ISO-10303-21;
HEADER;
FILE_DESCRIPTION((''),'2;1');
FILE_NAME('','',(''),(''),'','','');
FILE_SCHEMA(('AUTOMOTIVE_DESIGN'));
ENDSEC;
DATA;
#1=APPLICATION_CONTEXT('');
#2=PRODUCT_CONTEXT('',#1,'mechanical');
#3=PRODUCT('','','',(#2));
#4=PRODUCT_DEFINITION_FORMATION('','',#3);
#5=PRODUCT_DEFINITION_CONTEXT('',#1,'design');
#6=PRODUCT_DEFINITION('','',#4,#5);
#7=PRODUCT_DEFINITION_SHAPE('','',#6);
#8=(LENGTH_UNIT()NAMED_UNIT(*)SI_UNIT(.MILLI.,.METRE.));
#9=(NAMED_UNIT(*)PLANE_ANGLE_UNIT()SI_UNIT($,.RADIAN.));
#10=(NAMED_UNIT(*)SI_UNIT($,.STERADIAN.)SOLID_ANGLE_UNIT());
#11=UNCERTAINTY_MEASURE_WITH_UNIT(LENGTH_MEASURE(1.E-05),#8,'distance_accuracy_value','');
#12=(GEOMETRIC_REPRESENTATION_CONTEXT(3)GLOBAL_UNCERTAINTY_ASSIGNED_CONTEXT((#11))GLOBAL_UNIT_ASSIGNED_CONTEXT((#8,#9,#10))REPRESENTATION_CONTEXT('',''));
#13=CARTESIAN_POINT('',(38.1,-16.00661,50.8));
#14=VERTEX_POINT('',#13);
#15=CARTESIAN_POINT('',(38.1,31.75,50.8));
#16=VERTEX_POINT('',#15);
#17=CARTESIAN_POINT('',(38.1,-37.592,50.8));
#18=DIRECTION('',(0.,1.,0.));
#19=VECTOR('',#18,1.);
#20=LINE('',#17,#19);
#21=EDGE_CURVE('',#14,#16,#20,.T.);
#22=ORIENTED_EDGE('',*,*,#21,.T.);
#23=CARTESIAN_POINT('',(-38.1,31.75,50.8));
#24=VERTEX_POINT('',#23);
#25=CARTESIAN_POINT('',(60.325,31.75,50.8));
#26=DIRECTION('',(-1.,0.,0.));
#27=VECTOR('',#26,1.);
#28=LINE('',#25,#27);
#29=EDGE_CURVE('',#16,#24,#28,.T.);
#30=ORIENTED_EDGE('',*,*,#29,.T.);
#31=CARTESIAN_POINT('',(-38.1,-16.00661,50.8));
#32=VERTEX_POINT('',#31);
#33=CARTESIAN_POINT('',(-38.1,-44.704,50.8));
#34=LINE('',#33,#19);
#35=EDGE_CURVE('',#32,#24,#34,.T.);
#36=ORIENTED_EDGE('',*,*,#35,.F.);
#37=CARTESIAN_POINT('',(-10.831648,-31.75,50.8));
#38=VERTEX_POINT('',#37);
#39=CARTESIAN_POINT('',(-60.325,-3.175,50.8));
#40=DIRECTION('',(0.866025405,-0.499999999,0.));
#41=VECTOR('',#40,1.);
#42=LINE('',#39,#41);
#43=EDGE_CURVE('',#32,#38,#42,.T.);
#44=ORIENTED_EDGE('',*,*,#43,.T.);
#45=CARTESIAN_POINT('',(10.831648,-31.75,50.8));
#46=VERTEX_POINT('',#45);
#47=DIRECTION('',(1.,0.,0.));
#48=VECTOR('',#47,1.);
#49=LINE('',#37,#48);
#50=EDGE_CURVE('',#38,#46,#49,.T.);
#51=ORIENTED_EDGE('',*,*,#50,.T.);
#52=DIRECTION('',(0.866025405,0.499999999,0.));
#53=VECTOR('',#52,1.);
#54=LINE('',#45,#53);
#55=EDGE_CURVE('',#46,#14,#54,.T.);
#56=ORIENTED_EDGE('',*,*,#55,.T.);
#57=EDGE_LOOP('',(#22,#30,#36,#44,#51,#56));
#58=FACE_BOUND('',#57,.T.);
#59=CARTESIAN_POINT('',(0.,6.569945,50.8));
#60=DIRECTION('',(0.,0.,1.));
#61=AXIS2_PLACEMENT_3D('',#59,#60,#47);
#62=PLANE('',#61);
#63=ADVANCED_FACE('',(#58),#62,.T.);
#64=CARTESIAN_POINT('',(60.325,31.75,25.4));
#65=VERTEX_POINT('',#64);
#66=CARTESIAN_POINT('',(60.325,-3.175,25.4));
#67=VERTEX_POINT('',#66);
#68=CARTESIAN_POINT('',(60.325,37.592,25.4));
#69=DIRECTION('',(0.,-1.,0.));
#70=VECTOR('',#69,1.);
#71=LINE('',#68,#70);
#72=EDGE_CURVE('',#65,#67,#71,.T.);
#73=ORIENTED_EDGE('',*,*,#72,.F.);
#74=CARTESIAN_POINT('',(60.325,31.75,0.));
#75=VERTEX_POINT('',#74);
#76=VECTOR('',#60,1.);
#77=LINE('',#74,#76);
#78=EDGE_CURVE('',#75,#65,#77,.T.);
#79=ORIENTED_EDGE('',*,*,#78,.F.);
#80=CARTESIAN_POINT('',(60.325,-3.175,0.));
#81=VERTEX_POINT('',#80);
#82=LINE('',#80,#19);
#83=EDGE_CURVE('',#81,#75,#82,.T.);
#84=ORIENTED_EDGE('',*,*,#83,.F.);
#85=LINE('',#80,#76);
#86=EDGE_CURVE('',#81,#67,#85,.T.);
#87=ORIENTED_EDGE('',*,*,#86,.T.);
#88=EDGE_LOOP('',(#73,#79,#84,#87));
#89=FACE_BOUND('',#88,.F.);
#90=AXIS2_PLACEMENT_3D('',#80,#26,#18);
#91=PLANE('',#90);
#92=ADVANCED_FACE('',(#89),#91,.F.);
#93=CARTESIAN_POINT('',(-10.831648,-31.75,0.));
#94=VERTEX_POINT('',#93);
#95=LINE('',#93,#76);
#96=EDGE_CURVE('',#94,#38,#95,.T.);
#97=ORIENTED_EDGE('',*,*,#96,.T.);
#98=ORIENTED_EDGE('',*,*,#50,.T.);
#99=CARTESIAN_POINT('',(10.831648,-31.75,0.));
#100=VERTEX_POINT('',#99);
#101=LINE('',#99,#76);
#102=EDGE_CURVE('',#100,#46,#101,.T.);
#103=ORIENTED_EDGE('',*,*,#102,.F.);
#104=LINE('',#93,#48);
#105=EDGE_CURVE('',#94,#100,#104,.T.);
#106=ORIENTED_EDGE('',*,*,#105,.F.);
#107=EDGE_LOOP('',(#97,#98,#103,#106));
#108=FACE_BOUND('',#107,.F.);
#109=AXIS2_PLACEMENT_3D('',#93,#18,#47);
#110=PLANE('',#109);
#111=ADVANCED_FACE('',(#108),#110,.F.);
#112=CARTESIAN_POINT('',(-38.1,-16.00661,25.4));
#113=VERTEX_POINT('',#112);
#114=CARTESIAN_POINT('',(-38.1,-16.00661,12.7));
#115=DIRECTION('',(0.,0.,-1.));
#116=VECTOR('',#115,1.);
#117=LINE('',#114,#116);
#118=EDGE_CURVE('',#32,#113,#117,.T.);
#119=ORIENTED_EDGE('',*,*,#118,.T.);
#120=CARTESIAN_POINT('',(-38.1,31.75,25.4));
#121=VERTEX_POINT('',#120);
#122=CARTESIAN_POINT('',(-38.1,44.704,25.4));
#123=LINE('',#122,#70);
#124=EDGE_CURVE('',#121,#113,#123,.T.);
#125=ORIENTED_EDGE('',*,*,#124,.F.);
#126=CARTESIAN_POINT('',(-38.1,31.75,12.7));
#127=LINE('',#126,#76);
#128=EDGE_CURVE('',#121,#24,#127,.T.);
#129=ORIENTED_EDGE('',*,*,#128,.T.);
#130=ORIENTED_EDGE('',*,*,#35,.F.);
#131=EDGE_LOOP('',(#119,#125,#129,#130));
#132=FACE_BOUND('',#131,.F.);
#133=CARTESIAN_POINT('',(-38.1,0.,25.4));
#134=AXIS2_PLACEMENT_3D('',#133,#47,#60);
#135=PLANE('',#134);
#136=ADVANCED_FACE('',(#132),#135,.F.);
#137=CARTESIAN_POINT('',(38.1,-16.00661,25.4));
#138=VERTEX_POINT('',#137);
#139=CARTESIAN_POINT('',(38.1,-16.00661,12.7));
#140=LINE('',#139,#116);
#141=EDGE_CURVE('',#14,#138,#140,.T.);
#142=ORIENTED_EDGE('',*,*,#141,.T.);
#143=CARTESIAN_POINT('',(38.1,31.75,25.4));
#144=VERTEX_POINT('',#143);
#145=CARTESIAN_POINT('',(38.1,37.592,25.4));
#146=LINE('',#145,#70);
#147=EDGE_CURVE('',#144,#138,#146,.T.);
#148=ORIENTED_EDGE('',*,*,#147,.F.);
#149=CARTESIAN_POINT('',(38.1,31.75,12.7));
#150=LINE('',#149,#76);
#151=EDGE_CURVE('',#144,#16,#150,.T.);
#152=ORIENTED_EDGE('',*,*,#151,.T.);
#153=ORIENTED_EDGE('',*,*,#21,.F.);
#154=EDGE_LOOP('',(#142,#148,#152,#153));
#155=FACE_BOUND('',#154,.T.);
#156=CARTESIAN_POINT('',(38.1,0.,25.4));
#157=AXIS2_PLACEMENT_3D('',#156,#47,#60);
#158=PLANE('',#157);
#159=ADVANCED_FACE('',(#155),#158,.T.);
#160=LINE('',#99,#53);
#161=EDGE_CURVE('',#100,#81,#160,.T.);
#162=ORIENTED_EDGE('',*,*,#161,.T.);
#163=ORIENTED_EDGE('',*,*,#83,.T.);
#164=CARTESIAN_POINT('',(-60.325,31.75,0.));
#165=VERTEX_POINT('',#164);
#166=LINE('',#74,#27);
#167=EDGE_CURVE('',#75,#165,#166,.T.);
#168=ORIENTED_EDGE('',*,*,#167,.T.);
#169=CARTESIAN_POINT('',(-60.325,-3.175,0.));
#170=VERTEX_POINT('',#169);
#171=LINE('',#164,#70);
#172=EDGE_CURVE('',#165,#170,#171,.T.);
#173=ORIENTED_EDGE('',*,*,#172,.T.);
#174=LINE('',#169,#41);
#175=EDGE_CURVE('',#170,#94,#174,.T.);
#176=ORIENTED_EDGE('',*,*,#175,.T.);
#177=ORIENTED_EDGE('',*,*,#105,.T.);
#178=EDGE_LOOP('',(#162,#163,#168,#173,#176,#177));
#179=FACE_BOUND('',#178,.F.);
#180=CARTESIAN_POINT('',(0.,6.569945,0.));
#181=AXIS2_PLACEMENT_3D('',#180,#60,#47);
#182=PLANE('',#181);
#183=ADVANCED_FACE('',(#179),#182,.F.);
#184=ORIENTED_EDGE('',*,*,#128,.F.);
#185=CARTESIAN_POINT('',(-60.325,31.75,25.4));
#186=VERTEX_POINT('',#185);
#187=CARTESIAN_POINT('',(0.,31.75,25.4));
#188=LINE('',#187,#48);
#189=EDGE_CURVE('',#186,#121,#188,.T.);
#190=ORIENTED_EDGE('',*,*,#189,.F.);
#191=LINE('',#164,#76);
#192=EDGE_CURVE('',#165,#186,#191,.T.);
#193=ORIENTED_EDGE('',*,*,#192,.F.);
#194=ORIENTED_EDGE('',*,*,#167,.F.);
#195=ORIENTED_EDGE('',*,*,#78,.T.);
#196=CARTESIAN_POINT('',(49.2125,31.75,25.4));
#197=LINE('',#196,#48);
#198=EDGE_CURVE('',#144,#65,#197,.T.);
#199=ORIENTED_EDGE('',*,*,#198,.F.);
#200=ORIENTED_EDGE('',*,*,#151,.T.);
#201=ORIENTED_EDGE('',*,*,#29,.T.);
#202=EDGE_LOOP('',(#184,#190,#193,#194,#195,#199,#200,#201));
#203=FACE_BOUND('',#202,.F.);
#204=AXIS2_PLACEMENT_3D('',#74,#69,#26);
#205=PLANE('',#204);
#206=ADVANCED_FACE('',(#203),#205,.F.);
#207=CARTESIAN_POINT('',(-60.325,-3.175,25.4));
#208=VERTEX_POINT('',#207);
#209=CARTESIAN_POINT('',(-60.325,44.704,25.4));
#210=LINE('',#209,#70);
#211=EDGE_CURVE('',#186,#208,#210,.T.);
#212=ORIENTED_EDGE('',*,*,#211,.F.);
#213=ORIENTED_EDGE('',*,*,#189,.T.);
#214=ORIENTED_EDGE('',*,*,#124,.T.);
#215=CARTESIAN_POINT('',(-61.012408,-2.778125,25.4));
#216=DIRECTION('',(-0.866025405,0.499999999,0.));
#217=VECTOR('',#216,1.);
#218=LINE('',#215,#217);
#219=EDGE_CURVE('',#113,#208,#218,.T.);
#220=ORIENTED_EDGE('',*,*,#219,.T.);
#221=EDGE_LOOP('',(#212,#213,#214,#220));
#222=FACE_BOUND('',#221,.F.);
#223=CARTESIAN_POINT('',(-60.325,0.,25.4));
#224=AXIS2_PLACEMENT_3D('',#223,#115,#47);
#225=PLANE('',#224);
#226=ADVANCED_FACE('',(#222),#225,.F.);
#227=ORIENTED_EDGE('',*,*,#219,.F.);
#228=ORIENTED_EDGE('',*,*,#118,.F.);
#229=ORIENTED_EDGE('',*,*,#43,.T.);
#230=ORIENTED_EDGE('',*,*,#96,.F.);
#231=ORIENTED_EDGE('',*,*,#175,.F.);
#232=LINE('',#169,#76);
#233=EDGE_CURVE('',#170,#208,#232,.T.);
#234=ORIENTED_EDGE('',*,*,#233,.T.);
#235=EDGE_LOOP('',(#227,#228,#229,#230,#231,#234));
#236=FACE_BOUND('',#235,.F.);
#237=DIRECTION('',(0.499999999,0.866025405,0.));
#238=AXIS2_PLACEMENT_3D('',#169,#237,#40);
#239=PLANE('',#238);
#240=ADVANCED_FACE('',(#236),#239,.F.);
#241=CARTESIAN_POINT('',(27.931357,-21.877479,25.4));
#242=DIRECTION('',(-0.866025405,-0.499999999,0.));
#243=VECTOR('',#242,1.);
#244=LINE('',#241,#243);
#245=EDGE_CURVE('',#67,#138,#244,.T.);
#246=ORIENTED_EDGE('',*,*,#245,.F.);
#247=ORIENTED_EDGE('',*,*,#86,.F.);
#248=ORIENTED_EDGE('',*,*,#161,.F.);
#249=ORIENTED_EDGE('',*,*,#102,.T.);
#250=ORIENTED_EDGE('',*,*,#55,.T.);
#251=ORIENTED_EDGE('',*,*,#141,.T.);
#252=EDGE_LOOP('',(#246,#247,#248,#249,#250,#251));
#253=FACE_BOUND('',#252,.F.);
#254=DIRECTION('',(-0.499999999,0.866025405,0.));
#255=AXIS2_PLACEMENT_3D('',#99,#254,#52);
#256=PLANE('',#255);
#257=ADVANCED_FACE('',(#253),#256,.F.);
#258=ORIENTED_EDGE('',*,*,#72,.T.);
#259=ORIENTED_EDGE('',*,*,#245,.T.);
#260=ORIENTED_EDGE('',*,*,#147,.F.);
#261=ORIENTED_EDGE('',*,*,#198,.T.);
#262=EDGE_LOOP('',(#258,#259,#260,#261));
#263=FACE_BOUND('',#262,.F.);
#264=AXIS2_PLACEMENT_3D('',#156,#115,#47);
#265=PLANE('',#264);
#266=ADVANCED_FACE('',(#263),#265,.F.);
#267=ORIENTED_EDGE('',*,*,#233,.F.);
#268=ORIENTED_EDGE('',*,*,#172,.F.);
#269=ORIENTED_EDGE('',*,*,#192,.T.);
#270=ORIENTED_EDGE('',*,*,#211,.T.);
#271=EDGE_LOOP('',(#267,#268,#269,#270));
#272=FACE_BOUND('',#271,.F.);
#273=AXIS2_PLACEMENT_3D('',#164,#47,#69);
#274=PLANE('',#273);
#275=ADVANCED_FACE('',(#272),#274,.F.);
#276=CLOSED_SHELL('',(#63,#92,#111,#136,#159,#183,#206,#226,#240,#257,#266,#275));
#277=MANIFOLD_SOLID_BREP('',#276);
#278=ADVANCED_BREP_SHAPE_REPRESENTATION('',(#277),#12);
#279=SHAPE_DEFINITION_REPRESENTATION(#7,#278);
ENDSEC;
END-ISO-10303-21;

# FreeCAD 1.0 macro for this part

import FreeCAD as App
import Part
import Sketcher

V = App.Vector
Q = App.Units.Quantity


def add_polygon(sketch, points):
    """Adds a closed chain of lines whose ends are joined by coincident constraints."""
    first, n = sketch.GeometryCount, len(points)
    for a, b in zip(points, points[1:] + points[:1]):
        sketch.addGeometry(Part.LineSegment(App.Vector(*a, 0), App.Vector(*b, 0)), False)
    for i in range(n):
        sketch.addConstraint(Sketcher.Constraint("Coincident", first + i, 2, first + (i + 1) % n, 1))

doc = App.newDocument("Part")
body = doc.addObject("PartDesign::Body", "Body")

sketch1 = body.newObject("Sketcher::SketchObject", "Sketch")
sketch1.AttachmentSupport = (doc.getObject("XY_Plane"), [""])
sketch1.MapMode = "FlatFace"
add_polygon(sketch1, [(60, 32), (-60, 32), (-60, -3), (-11, -32), (11, -32), (60, -3)])
sketch1.addConstraint([
    Sketcher.Constraint("Horizontal", 0),
    Sketcher.Constraint("Vertical", 1),
    Sketcher.Constraint("Horizontal", 3),
    Sketcher.Constraint("Vertical", 5),
    Sketcher.Constraint("Symmetric", 1, 2, 4, 2, -2),
    Sketcher.Constraint("Equal", 2, 4),
    Sketcher.Constraint("Angle", 2, Q("-30 deg")),
    Sketcher.Constraint("DistanceX", 0, 2, 0, 1, Q("4.75 in")),
    Sketcher.Constraint("DistanceY", 2, 2, 0, 2, Q("2.5 in")),
    Sketcher.Constraint("Distance", 2, Q("2.25 in")),
    Sketcher.Constraint("DistanceY", -1, 1, 0, 2, Q("1.25 in")),
])
pad1 = body.newObject("PartDesign::Pad", "Pad")
pad1.Profile = sketch1
pad1.Length = Q("2 in")

sketch2 = body.newObject("Sketcher::SketchObject", "Sketch001")
sketch2.AttachmentSupport = (doc.getObject("XZ_Plane"), [""])
sketch2.MapMode = "FlatFace"
add_polygon(sketch2, [(-60, 51), (-60, 25), (-38, 25), (-38, 51)])
sketch2.addConstraint([
    Sketcher.Constraint("Vertical", 0),
    Sketcher.Constraint("Horizontal", 1),
    Sketcher.Constraint("Vertical", 2),
    Sketcher.Constraint("Horizontal", 3),
    Sketcher.Constraint("DistanceY", 0, 2, 0, 1, Q("1 in")),
    Sketcher.Constraint("DistanceY", -1, 1, 0, 2, Q("1 in")),
    Sketcher.Constraint("DistanceX", 1, 2, -1, 1, Q("1.5 in")),
    Sketcher.Constraint("DistanceX", 1, 1, 1, 2, Q("0.875 in")),
])
pocket1 = body.newObject("PartDesign::Pocket", "Pocket")
pocket1.Profile = sketch2
pocket1.Length = Q("3.52 in")
pocket1.Midplane = True

sketch3 = body.newObject("Sketcher::SketchObject", "Sketch002")
sketch3.AttachmentSupport = (doc.getObject("XZ_Plane"), [""])
sketch3.MapMode = "FlatFace"
add_polygon(sketch3, [(38, 51), (38, 25), (60, 25), (60, 51)])
sketch3.addConstraint([
    Sketcher.Constraint("Vertical", 0),
    Sketcher.Constraint("Horizontal", 1),
    Sketcher.Constraint("Vertical", 2),
    Sketcher.Constraint("Horizontal", 3),
    Sketcher.Constraint("DistanceY", 0, 2, 0, 1, Q("1 in")),
    Sketcher.Constraint("DistanceY", -1, 1, 0, 2, Q("1 in")),
    Sketcher.Constraint("DistanceX", -1, 1, 0, 2, Q("1.5 in")),
    Sketcher.Constraint("DistanceX", 1, 1, 1, 2, Q("0.875 in")),
])
pocket2 = body.newObject("PartDesign::Pocket", "Pocket001")
pocket2.Profile = sketch3
pocket2.Length = Q("2.96 in")
pocket2.Midplane = True

doc.recompute()
